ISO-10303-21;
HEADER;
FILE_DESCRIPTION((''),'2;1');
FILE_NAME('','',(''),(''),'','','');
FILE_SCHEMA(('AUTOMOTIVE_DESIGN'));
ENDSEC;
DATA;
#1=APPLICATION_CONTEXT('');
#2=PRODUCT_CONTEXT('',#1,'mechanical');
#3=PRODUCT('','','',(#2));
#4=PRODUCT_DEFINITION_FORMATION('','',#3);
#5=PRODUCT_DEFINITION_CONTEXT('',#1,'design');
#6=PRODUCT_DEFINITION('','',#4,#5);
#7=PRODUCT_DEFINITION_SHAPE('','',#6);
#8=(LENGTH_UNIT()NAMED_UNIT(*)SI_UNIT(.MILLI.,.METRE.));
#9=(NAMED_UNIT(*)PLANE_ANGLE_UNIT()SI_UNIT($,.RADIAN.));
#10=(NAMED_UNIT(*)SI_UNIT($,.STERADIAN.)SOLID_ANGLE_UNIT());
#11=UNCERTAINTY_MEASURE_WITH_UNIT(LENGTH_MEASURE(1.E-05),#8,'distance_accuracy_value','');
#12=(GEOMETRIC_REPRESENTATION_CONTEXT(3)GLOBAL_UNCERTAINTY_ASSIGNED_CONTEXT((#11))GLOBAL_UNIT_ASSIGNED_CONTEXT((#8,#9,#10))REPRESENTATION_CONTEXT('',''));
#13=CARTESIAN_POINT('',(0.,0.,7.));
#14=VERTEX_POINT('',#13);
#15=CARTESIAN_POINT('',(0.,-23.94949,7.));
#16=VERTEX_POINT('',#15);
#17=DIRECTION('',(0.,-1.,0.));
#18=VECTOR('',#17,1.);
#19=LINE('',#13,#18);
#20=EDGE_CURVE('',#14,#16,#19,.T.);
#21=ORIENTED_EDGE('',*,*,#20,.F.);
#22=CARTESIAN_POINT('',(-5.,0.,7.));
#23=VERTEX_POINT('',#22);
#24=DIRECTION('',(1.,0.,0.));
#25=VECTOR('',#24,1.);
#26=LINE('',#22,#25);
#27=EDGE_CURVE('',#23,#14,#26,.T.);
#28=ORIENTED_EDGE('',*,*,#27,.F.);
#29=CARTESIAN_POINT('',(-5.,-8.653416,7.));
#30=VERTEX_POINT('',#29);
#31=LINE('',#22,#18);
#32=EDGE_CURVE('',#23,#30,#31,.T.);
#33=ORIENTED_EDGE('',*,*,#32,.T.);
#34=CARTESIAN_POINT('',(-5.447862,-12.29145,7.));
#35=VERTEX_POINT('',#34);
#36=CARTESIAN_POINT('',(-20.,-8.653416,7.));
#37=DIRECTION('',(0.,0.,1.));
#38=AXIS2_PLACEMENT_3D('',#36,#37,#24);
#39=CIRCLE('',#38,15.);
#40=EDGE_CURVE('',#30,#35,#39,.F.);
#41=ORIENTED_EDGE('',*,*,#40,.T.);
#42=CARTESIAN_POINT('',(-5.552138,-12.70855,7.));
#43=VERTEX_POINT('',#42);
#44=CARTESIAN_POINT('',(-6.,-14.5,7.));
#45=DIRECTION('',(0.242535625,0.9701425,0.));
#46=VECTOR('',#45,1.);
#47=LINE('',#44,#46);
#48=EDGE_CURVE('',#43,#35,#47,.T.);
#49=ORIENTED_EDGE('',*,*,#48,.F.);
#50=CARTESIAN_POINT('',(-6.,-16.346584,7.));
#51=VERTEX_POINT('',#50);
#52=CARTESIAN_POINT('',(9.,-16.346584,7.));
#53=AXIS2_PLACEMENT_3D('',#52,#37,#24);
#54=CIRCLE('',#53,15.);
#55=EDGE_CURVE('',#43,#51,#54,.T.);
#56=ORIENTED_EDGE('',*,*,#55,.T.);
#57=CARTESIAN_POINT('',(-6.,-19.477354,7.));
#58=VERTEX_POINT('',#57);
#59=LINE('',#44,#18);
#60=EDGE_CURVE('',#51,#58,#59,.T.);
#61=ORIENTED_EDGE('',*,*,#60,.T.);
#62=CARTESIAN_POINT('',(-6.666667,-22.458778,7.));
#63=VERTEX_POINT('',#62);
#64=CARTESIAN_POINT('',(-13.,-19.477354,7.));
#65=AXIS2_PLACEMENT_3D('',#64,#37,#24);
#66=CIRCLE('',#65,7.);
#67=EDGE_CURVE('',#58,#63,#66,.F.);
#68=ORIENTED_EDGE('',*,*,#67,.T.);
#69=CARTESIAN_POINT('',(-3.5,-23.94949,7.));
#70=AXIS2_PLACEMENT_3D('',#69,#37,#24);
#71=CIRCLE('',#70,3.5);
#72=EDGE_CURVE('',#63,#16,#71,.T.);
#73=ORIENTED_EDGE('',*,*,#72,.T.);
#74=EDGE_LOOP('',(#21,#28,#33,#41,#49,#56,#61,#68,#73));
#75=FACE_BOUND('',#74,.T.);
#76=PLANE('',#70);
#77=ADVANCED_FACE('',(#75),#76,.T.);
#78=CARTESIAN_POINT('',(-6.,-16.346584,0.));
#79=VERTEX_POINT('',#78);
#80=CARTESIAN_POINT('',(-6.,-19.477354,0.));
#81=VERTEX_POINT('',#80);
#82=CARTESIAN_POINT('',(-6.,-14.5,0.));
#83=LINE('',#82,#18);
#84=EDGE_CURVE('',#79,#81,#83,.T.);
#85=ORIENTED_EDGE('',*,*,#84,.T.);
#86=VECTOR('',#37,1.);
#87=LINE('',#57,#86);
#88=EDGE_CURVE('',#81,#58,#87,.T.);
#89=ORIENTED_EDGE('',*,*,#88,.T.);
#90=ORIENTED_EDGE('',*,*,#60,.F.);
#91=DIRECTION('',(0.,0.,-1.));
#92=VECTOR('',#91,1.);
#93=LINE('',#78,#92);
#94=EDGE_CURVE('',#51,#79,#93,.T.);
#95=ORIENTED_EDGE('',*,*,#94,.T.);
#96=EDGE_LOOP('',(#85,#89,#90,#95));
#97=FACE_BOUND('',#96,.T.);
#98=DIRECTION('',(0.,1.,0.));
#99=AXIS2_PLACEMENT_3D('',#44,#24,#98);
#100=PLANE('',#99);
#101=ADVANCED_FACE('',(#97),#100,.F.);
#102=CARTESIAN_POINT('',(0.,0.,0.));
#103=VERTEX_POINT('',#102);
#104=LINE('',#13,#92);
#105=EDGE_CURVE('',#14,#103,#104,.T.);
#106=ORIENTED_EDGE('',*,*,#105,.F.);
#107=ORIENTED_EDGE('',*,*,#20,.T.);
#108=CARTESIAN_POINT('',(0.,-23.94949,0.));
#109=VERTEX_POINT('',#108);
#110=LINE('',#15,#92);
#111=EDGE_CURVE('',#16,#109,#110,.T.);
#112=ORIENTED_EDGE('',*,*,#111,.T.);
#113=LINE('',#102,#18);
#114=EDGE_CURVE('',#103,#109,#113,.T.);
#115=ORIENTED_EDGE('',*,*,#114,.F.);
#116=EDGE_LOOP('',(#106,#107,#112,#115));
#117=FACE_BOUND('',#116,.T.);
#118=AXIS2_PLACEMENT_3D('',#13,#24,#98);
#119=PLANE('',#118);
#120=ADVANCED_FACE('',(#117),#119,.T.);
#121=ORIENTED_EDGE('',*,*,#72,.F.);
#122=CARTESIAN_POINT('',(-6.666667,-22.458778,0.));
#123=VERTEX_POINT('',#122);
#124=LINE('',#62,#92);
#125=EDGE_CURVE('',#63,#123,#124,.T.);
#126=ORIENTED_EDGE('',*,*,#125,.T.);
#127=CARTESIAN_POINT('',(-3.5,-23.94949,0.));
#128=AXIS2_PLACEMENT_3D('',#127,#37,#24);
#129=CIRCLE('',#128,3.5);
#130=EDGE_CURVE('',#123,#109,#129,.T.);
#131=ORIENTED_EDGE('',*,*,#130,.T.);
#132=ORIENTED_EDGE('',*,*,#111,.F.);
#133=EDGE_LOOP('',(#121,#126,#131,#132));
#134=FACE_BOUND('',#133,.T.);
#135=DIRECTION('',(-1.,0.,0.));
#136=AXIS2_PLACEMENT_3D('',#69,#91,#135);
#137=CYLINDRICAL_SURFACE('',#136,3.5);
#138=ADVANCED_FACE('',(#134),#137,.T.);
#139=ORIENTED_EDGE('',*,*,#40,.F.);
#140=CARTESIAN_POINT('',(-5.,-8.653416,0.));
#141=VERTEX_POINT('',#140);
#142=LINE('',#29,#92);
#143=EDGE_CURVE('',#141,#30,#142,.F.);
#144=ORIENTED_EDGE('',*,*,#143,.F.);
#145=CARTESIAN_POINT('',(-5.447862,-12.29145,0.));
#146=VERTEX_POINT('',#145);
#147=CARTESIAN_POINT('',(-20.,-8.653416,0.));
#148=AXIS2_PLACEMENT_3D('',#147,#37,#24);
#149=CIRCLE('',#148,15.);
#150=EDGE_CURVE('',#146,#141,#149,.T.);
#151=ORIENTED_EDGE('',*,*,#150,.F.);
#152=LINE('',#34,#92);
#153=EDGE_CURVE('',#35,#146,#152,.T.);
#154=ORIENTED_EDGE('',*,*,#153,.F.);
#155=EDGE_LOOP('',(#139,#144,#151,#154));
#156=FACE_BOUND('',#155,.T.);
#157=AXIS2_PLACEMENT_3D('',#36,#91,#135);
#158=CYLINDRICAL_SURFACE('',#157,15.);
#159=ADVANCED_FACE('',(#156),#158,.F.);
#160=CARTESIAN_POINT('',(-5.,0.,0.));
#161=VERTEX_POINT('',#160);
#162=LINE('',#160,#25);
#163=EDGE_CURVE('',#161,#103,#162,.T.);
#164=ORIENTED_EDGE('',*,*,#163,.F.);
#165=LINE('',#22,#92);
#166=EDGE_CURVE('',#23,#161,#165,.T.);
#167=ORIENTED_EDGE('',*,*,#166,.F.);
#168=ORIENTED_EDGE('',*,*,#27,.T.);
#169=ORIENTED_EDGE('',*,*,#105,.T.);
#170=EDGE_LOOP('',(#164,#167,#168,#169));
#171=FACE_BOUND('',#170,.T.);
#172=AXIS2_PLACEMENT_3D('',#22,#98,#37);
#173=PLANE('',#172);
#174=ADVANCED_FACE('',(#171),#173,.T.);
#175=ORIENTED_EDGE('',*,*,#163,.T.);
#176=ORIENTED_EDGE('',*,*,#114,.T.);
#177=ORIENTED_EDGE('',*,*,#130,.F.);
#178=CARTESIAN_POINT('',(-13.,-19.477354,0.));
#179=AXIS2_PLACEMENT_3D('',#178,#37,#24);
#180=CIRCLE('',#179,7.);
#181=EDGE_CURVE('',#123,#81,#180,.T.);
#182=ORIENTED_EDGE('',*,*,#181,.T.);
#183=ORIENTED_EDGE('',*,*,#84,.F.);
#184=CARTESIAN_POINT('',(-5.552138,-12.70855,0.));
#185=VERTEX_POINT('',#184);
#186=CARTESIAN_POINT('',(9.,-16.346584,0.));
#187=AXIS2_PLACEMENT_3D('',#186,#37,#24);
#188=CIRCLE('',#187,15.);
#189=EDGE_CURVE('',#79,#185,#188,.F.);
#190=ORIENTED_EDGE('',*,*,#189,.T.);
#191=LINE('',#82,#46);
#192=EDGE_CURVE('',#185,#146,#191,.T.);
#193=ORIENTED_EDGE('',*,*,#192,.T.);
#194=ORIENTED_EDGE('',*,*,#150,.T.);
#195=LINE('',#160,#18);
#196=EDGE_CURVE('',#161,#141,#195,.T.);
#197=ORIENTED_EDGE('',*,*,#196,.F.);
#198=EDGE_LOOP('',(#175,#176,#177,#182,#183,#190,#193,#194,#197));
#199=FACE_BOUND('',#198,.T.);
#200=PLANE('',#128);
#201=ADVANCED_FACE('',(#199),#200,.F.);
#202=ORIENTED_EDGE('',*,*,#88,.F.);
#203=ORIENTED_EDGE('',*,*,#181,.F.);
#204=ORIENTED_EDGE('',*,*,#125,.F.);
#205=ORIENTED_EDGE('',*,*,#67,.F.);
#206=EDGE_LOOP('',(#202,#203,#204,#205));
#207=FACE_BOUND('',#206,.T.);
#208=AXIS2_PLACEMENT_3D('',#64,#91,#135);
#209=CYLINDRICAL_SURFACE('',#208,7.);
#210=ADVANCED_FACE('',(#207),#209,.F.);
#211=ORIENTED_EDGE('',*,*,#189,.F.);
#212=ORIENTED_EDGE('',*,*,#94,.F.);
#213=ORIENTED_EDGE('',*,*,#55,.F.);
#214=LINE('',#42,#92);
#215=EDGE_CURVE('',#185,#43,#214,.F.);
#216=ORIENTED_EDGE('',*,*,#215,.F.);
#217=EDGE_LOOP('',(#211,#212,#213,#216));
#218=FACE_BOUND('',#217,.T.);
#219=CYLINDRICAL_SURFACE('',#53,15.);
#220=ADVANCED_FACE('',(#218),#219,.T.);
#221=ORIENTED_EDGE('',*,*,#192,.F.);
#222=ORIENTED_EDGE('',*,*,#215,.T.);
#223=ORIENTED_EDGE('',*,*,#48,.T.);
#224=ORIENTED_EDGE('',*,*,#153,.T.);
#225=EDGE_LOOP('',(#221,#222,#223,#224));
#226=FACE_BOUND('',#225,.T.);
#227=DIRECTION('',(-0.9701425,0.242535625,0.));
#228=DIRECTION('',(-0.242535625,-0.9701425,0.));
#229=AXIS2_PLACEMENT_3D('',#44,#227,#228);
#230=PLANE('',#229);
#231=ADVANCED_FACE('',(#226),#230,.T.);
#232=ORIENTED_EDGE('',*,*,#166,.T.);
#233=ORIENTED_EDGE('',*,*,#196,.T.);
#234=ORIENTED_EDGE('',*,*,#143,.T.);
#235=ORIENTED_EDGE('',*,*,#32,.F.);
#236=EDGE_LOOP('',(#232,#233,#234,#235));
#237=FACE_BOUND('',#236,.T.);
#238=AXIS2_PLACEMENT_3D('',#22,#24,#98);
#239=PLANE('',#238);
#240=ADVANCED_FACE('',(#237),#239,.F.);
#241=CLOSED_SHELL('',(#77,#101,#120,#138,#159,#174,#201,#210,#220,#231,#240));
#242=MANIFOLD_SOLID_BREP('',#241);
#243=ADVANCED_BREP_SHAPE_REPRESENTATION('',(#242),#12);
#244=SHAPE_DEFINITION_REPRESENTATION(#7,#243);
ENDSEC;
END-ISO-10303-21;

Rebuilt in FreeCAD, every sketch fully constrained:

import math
import FreeCAD as App
import Part
import Sketcher

V = App.Vector


def edges_at(feature, points):
    """Names of the edges that pass closest to the given points."""
    edges = feature.Shape.Edges
    near = lambda p: min(range(len(edges)), key=lambda i: edges[i].distToShape(Part.Vertex(*p))[0])
    return sorted({f"Edge{near(p) + 1}" for p in points})

doc = App.newDocument("Part")
body = doc.addObject("PartDesign::Body", "Body")

# Sketch on XY plane
sketch1 = body.newObject("Sketcher::SketchObject", "Sketch")
sketch1.AttachmentSupport = (doc.getObject("XY_Plane"), [""])
sketch1.MapMode = "FlatFace"
sketch1.addGeometry(Part.LineSegment(V(-5, 0, 0), V(-5, -10.5, 0)), False)
sketch1.addGeometry(Part.LineSegment(V(-5, -10.5, 0), V(-6, -14.5, 0)), False)
sketch1.addGeometry(Part.LineSegment(V(-6, -14.5, 0), V(-6, -21.5, 0)), False)
sketch1.addGeometry(Part.ArcOfCircle(Part.Circle(V(-3.5, -23.9, 0), V(0, 0, 1), 3.5), math.radians(136), math.radians(360)), False)
sketch1.addGeometry(Part.LineSegment(V(0, -23.9, 0), V(0, 0, 0)), False)
sketch1.addGeometry(Part.LineSegment(V(0, 0, 0), V(-5, 0, 0)), False)
sketch1.addConstraint(Sketcher.Constraint("Coincident", 0, 2, 1, 1))
sketch1.addConstraint(Sketcher.Constraint("Coincident", 1, 2, 2, 1))
sketch1.addConstraint(Sketcher.Constraint("Coincident", 2, 2, 3, 1))
sketch1.addConstraint(Sketcher.Constraint("Tangent", 3, 2, 4, 1))
sketch1.addConstraint(Sketcher.Constraint("Coincident", 4, 2, 5, 1))
sketch1.addConstraint(Sketcher.Constraint("Coincident", 5, 2, 0, 1))
sketch1.addConstraint(Sketcher.Constraint("Vertical", 0))
sketch1.addConstraint(Sketcher.Constraint("Vertical", 2))
sketch1.addConstraint(Sketcher.Constraint("Vertical", 4))
sketch1.addConstraint(Sketcher.Constraint("Horizontal", 5))
sketch1.addConstraint(Sketcher.Constraint("Coincident", 4, 2, -1, 1))
sketch1.addConstraint(Sketcher.Constraint("Radius", 3, 3.5))
sketch1.addConstraint(Sketcher.Constraint("DistanceX", 5, 2, 5, 1, 5.0))
sketch1.addConstraint(Sketcher.Constraint("DistanceY", 2, 2, 2, 1, 7.0))
sketch1.addConstraint(Sketcher.Constraint("DistanceY", 0, 2, 0, 1, 10.5))
sketch1.addConstraint(Sketcher.Constraint("DistanceX", 1, 2, -1, 1, 6.0))
sketch1.addConstraint(Sketcher.Constraint("DistanceY", 1, 2, 0, 2, 4.0))
pad1 = body.newObject("PartDesign::Pad", "Pad")
pad1.Profile = sketch1
pad1.Length = 7
doc.recompute()

fillet = body.newObject("PartDesign::Fillet", "Fillet")
fillet.Base = (pad1, edges_at(pad1, [(-6, -21.5, 3.5)]))
fillet.Radius = 7
doc.recompute()

fillet2 = body.newObject("PartDesign::Fillet", "Fillet001")
fillet2.Base = (fillet, edges_at(fillet, [(-6, -14.5, 3.5), (-5, -10.5, 3.5)]))
fillet2.Radius = 15

doc.recompute()
